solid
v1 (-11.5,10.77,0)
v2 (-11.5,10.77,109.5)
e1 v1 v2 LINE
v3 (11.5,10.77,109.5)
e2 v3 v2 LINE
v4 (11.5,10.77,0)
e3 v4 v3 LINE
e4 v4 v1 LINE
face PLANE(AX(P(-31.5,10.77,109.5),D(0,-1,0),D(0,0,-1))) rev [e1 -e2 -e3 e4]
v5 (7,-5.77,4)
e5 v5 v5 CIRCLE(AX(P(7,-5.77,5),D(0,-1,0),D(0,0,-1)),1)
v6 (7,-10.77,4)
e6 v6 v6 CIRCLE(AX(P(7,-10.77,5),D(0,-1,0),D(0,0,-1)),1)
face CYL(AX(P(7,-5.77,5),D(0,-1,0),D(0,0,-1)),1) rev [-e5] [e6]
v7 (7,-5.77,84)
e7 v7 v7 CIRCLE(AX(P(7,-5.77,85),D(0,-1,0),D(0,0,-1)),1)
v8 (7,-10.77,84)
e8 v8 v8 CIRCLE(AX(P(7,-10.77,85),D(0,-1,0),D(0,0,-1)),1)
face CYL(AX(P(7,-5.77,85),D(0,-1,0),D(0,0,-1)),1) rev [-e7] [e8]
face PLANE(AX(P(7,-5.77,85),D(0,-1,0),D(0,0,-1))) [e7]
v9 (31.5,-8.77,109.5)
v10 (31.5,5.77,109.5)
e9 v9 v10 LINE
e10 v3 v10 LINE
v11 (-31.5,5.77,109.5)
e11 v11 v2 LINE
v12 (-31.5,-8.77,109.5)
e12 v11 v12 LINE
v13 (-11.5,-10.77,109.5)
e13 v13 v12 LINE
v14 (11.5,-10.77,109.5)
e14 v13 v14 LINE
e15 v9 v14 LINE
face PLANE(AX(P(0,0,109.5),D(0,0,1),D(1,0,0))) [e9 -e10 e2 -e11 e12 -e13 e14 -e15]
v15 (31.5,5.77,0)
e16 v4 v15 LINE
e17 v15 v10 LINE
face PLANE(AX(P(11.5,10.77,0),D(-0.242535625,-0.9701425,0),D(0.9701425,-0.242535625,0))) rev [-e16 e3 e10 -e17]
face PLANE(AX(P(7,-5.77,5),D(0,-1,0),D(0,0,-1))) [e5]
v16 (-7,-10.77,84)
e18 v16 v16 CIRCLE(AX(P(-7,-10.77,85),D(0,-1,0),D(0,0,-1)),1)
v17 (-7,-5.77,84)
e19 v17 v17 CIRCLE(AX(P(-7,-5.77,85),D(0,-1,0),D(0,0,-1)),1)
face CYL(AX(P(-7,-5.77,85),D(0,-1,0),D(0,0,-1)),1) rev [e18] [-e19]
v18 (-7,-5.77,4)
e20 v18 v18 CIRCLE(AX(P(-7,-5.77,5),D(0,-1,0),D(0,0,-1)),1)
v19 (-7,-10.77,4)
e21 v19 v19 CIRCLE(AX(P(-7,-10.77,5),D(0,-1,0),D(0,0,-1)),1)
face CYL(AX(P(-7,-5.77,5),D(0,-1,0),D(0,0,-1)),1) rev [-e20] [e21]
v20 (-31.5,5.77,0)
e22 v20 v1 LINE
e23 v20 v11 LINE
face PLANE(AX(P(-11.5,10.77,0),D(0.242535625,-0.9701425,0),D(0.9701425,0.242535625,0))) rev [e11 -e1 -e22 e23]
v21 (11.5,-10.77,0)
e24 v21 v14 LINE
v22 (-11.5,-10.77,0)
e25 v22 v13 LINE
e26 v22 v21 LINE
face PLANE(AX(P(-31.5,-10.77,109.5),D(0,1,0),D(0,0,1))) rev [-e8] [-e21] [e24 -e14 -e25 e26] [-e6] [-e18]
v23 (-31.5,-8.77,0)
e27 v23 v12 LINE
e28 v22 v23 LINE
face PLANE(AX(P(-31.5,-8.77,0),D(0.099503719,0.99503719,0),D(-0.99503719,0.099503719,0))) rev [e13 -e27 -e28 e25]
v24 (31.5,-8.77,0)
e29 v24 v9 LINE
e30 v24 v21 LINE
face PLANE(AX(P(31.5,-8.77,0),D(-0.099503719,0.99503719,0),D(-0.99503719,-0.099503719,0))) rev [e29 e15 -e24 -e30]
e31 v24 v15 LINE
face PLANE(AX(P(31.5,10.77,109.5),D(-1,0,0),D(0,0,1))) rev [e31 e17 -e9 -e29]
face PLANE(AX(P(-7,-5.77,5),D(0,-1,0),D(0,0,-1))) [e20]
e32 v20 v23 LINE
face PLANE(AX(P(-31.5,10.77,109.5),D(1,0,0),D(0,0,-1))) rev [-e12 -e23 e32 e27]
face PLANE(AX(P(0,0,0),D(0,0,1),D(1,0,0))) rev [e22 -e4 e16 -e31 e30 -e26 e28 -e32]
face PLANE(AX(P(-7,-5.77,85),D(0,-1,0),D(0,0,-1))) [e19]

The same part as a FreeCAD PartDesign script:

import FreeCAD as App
import Part
import Sketcher

V = App.Vector

doc = App.newDocument("Part")
body = doc.addObject("PartDesign::Body", "Body")

# Sketch on XY plane
sketch1 = body.newObject("Sketcher::SketchObject", "Sketch")
sketch1.AttachmentSupport = (doc.getObject("XY_Plane"), [""])
sketch1.MapMode = "FlatFace"
sketch1.addGeometry([
    Part.LineSegment(V(-32, 11, 0), V(-32, -11, 0)),
    Part.LineSegment(V(-32, -11, 0), V(32, -11, 0)),
    Part.LineSegment(V(32, -11, 0), V(32, 11, 0)),
    Part.LineSegment(V(32, 11, 0), V(-32, 11, 0)),
], False)
sketch1.addConstraint([
    Sketcher.Constraint("Coincident", 0, 2, 1, 1),
    Sketcher.Constraint("Coincident", 1, 2, 2, 1),
    Sketcher.Constraint("Coincident", 2, 2, 3, 1),
    Sketcher.Constraint("Coincident", 3, 2, 0, 1),
    Sketcher.Constraint("Vertical", 0),
    Sketcher.Constraint("Horizontal", 1),
    Sketcher.Constraint("Vertical", 2),
    Sketcher.Constraint("Horizontal", 3),
    Sketcher.Constraint("Symmetric", 0, 2, 2, 2, -1, 1),
    Sketcher.Constraint("DistanceX", 1, 1, 1, 2, 63.0),
    Sketcher.Constraint("DistanceY", 0, 2, 0, 1, 21.54),
])
pad1 = body.newObject("PartDesign::Pad", "Pad")
pad1.Profile = sketch1
pad1.Length = 109.5

# Sketch on XY plane
sketch2 = body.newObject("Sketcher::SketchObject", "Sketch001")
sketch2.AttachmentSupport = (doc.getObject("XY_Plane"), [""])
sketch2.MapMode = "FlatFace"
sketch2.AttachmentOffset = App.Placement(V(0, 0, 109.5), App.Rotation())
sketch2.addGeometry([
    Part.LineSegment(V(11.5, 10.8, 0), V(31.5, 5.8, 0)),  # 0
    Part.LineSegment(V(31.5, 5.8, 0), V(31.5, 10.8, 0)),  # 1
    Part.LineSegment(V(31.5, 10.8, 0), V(11.5, 10.8, 0)),  # 2
    Part.LineSegment(V(-11.5, 10.8, 0), V(-31.5, 10.8, 0)),  # 3
    Part.LineSegment(V(-31.5, 10.8, 0), V(-31.5, 5.8, 0)),  # 4
    Part.LineSegment(V(-31.5, 5.8, 0), V(-11.5, 10.8, 0)),  # 5
    Part.LineSegment(V(-11.5, -10.8, 0), V(-31.5, -8.8, 0)),  # 6
    Part.LineSegment(V(-31.5, -8.8, 0), V(-31.5, -10.8, 0)),  # 7
    Part.LineSegment(V(-31.5, -10.8, 0), V(-11.5, -10.8, 0)),  # 8
    Part.LineSegment(V(31.5, -8.8, 0), V(11.5, -10.8, 0)),  # 9
    Part.LineSegment(V(11.5, -10.8, 0), V(31.5, -10.8, 0)),  # 10
    Part.LineSegment(V(31.5, -10.8, 0), V(31.5, -8.8, 0)),  # 11
], False)
sketch2.addConstraint([
    Sketcher.Constraint("Coincident", 0, 2, 1, 1),
    Sketcher.Constraint("Coincident", 1, 2, 2, 1),
    Sketcher.Constraint("Coincident", 2, 2, 0, 1),
    Sketcher.Constraint("Coincident", 3, 2, 4, 1),
    Sketcher.Constraint("Coincident", 4, 2, 5, 1),
    Sketcher.Constraint("Coincident", 5, 2, 3, 1),
    Sketcher.Constraint("Coincident", 6, 2, 7, 1),
    Sketcher.Constraint("Coincident", 7, 2, 8, 1),
    Sketcher.Constraint("Coincident", 8, 2, 6, 1),
    Sketcher.Constraint("Coincident", 9, 2, 10, 1),
    Sketcher.Constraint("Coincident", 10, 2, 11, 1),
    Sketcher.Constraint("Coincident", 11, 2, 9, 1),
    Sketcher.Constraint("Vertical", 1),
    Sketcher.Constraint("Horizontal", 2),
    Sketcher.Constraint("Horizontal", 3),
    Sketcher.Constraint("Vertical", 4),
    Sketcher.Constraint("Vertical", 7),
    Sketcher.Constraint("Horizontal", 8),
    Sketcher.Constraint("Horizontal", 10),
    Sketcher.Constraint("Vertical", 11),
    Sketcher.Constraint("Symmetric", 1, 2, 7, 2, -1, 1),
    Sketcher.Constraint("Symmetric", 5, 2, 9, 2, -1, 1),
    Sketcher.Constraint("Symmetric", 1, 2, 3, 2, -2),
    Sketcher.Constraint("Symmetric", 6, 2, 11, 2, -2),
    Sketcher.Constraint("Horizontal", 0, 2, 4, 2),
    Sketcher.Constraint("Vertical", 5, 2, 8, 2),
    Sketcher.Constraint("Vertical", 2, 2, 9, 2),
    Sketcher.Constraint("DistanceX", 2, 2, 2, 1, 20.0),
    Sketcher.Constraint("DistanceY", 1, 1, 1, 2, 5.0),
    Sketcher.Constraint("DistanceY", 7, 2, 7, 1, 2.0),
    Sketcher.Constraint("DistanceX", 3, 2, 2, 2, 43.0),
    Sketcher.Constraint("DistanceY", -1, 1, 0, 2, 5.77),
])
pocket1 = body.newObject("PartDesign::Pocket", "Pocket")
pocket1.Profile = sketch2
pocket1.Type = "ThroughAll"

# Sketch on XZ plane
sketch3 = body.newObject("Sketcher::SketchObject", "Sketch002")
sketch3.AttachmentSupport = (doc.getObject("XZ_Plane"), [""])
sketch3.MapMode = "FlatFace"
sketch3.AttachmentOffset = App.Placement(V(0, 0, 10.77), App.Rotation())
sketch3.addGeometry([
    Part.Circle(V(-7, 5, 0), V(0, 0, 1), 1),
    Part.Circle(V(7, 5, 0), V(0, 0, 1), 1),
    Part.Circle(V(-7, 85, 0), V(0, 0, 1), 1),
    Part.Circle(V(7, 85, 0), V(0, 0, 1), 1),
], False)
sketch3.addConstraint([
    Sketcher.Constraint("Equal", 0, 1),
    Sketcher.Constraint("Equal", 1, 2),
    Sketcher.Constraint("Equal", 2, 3),
    Sketcher.Constraint("Symmetric", 0, 3, 1, 3, -2),
    Sketcher.Constraint("Symmetric", 2, 3, 3, 3, -2),
    Sketcher.Constraint("Vertical", 0, 3, 2, 3),
    Sketcher.Constraint("Diameter", 0, 2.0),
    Sketcher.Constraint("DistanceX", 0, 3, -1, 1, 7.0),
    Sketcher.Constraint("DistanceY", -1, 1, 0, 3, 5.0),
    Sketcher.Constraint("DistanceY", -1, 1, 2, 3, 85.0),
])
pocket2 = body.newObject("PartDesign::Pocket", "Pocket001")
pocket2.Profile = sketch3
pocket2.Length = 5

doc.recompute()
